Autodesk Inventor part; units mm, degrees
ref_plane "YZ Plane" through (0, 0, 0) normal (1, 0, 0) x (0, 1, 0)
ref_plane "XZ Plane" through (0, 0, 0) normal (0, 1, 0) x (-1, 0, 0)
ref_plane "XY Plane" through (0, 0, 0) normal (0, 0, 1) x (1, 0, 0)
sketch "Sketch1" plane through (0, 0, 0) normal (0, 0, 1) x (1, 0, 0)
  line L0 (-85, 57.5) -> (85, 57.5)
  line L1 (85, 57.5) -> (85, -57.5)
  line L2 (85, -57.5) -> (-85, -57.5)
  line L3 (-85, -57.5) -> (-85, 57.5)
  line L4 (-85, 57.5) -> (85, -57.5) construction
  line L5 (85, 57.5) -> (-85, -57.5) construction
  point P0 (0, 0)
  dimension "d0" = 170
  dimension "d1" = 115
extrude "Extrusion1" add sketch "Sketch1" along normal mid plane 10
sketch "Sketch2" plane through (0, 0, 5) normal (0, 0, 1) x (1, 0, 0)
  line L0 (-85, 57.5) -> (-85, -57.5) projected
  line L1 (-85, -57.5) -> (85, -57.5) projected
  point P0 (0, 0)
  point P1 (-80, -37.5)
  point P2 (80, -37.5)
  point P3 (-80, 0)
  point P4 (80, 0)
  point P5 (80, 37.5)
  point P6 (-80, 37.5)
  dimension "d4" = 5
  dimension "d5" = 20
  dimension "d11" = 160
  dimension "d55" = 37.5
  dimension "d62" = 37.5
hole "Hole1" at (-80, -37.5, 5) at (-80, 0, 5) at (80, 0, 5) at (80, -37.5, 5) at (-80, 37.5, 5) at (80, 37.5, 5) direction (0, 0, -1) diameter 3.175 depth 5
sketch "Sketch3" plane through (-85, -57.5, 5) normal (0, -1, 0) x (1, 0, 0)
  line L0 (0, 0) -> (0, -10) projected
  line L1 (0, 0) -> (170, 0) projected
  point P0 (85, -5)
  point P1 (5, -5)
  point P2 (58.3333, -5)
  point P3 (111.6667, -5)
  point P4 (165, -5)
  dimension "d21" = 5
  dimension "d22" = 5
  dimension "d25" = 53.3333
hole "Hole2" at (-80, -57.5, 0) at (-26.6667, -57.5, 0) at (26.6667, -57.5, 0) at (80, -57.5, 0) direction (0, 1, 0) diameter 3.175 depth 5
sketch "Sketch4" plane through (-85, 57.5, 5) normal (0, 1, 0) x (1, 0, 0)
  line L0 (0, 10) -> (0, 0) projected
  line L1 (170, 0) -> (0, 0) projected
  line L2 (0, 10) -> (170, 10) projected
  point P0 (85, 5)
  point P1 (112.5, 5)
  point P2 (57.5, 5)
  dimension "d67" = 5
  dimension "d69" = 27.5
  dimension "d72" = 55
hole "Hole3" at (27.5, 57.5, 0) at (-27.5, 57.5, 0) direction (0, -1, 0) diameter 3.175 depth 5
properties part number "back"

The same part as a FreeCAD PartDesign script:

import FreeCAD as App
import Part
import Sketcher
Q = App.Units.Quantity


def add_polygon(sketch, points):
    """Adds a closed chain of lines whose ends are joined by coincident constraints."""
    first, n = sketch.GeometryCount, len(points)
    for a, b in zip(points, points[1:] + points[:1]):
        sketch.addGeometry(Part.LineSegment(App.Vector(*a, 0), App.Vector(*b, 0)), False)
    for i in range(n):
        sketch.addConstraint(Sketcher.Constraint("Coincident", first + i, 2, first + (i + 1) % n, 1))

doc = App.newDocument("Part")
params = doc.addObject("Spreadsheet::Sheet", "Params")
for row, (alias, value) in enumerate([
    ("sketch1_width", "170 mm"),
    ("sketch1_height", "115 mm"),
    ("pad1_length", "10 mm"),
    ("hole_diameter", "3.175 mm"),
    ("hole_depth", "5 mm"),
    ("hole2_diameter", "3.175 mm"),
    ("hole2_depth", "5 mm"),
    ("hole3_diameter", "3.175 mm"),
    ("hole3_depth", "5 mm"),
], start=1):
    params.set(f"A{row}", alias)
    params.set(f"B{row}", "=" + value)
    params.setAlias(f"B{row}", alias)

body = doc.addObject("PartDesign::Body", "Body")

# Sketch on XY plane
sketch1 = body.newObject("Sketcher::SketchObject", "Sketch")
sketch1.AttachmentSupport = (doc.getObject("XY_Plane"), [""])
sketch1.MapMode = "FlatFace"
add_polygon(sketch1, [(85, 57.5), (-85, 57.5), (-85, -57.5), (85, -57.5)])  # lines 0-3
sketch1.addConstraint(Sketcher.Constraint("Horizontal", 0))
sketch1.addConstraint(Sketcher.Constraint("Vertical", 1))
sketch1.addConstraint(Sketcher.Constraint("Horizontal", 2))
sketch1.addConstraint(Sketcher.Constraint("Vertical", 3))
sketch1.addConstraint(Sketcher.Constraint("Symmetric", 0, 2, 2, 2, -1, 1))
sketch1.addConstraint(Sketcher.Constraint("DistanceX", 0, 2, 0, 1, Q("170 mm")))
sketch1.addConstraint(Sketcher.Constraint("DistanceY", 1, 2, 1, 1, Q("115 mm")))
sketch1.setExpression("Constraints[9]", "Params.sketch1_width")
sketch1.setExpression("Constraints[10]", "Params.sketch1_height")
pad1 = body.newObject("PartDesign::Pad", "Pad")
pad1.Profile = sketch1
pad1.setExpression("Length", "Params.pad1_length")
pad1.Midplane = True

# Sketch on XY plane
sketch2 = body.newObject("Sketcher::SketchObject", "Sketch001")
sketch2.AttachmentSupport = (doc.getObject("XY_Plane"), [""])
sketch2.MapMode = "FlatFace"
sketch2.AttachmentOffset = App.Placement(App.Vector(0, 0, 5), App.Rotation())
sketch2.addGeometry(Part.Circle(App.Vector(-80, -37.5, 0), App.Vector(0, 0, 1), 1.5875), False)
sketch2.addGeometry(Part.Circle(App.Vector(-80, 0, 0), App.Vector(0, 0, 1), 1.5875), False)
sketch2.addGeometry(Part.Circle(App.Vector(80, 0, 0), App.Vector(0, 0, 1), 1.5875), False)
sketch2.addGeometry(Part.Circle(App.Vector(80, -37.5, 0), App.Vector(0, 0, 1), 1.5875), False)
sketch2.addGeometry(Part.Circle(App.Vector(-80, 37.5, 0), App.Vector(0, 0, 1), 1.5875), False)
sketch2.addGeometry(Part.Circle(App.Vector(80, 37.5, 0), App.Vector(0, 0, 1), 1.5875), False)
sketch2.addConstraint(Sketcher.Constraint("Equal", 0, 1))
sketch2.addConstraint(Sketcher.Constraint("Equal", 1, 2))
sketch2.addConstraint(Sketcher.Constraint("Equal", 2, 3))
sketch2.addConstraint(Sketcher.Constraint("Equal", 3, 4))
sketch2.addConstraint(Sketcher.Constraint("Equal", 4, 5))
sketch2.addConstraint(Sketcher.Constraint("Symmetric", 1, 3, 2, 3, -1, 1))
sketch2.addConstraint(Sketcher.Constraint("Symmetric", 3, 3, 4, 3, -1, 1))
sketch2.addConstraint(Sketcher.Constraint("Symmetric", 0, 3, 5, 3, -1, 1))
sketch2.addConstraint(Sketcher.Constraint("Symmetric", 0, 3, 3, 3, -2))
sketch2.addConstraint(Sketcher.Constraint("PointOnObject", 1, 3, -1))
sketch2.addConstraint(Sketcher.Constraint("Vertical", 0, 3, 1, 3))
sketch2.addConstraint(Sketcher.Constraint("Diameter", 0, Q("3.175 mm")))
sketch2.addConstraint(Sketcher.Constraint("DistanceX", 0, 3, -1, 1, Q("80 mm")))
sketch2.addConstraint(Sketcher.Constraint("DistanceY", 0, 3, 4, 3, Q("75 mm")))
doc.recompute()
hole = body.newObject("PartDesign::Hole", "Hole")
hole.Profile = sketch2
hole.ThreadType = "None"
hole.setExpression("Diameter", "Params.hole_diameter")
hole.DepthType = "Dimension"
hole.setExpression("Depth", "Params.hole_depth")
hole.DrillPoint = "Flat"

# Sketch on XZ plane
sketch3 = body.newObject("Sketcher::SketchObject", "Sketch002")
sketch3.AttachmentSupport = (doc.getObject("XZ_Plane"), [""])
sketch3.MapMode = "FlatFace"
sketch3.AttachmentOffset = App.Placement(App.Vector(0, 0, 57.5), App.Rotation())
sketch3.addGeometry(Part.Circle(App.Vector(-80, 0, 0), App.Vector(0, 0, 1), 1.5875), False)
sketch3.addGeometry(Part.Circle(App.Vector(-26.6667, 0, 0), App.Vector(0, 0, 1), 1.5875), False)
sketch3.addGeometry(Part.Circle(App.Vector(26.6667, 0, 0), App.Vector(0, 0, 1), 1.5875), False)
sketch3.addGeometry(Part.Circle(App.Vector(80, 0, 0), App.Vector(0, 0, 1), 1.5875), False)
sketch3.addConstraint(Sketcher.Constraint("Equal", 0, 1))
sketch3.addConstraint(Sketcher.Constraint("Equal", 1, 2))
sketch3.addConstraint(Sketcher.Constraint("Equal", 2, 3))
sketch3.addConstraint(Sketcher.Constraint("Symmetric", 1, 3, 2, 3, -1, 1))
sketch3.addConstraint(Sketcher.Constraint("Symmetric", 0, 3, 3, 3, -1, 1))
sketch3.addConstraint(Sketcher.Constraint("PointOnObject", 0, 3, -1))
sketch3.addConstraint(Sketcher.Constraint("PointOnObject", 1, 3, -1))
sketch3.addConstraint(Sketcher.Constraint("Diameter", 0, Q("3.175 mm")))
sketch3.addConstraint(Sketcher.Constraint("DistanceX", 0, 3, -1, 1, Q("80 mm")))
sketch3.addConstraint(Sketcher.Constraint("DistanceX", 1, 3, -1, 1, Q("26.6667 mm")))
doc.recompute()
hole2 = body.newObject("PartDesign::Hole", "Hole001")
hole2.Profile = sketch3
hole2.ThreadType = "None"
hole2.setExpression("Diameter", "Params.hole2_diameter")
hole2.DepthType = "Dimension"
hole2.setExpression("Depth", "Params.hole2_depth")
hole2.DrillPoint = "Flat"

# Sketch on XZ plane
sketch4 = body.newObject("Sketcher::SketchObject", "Sketch003")
sketch4.AttachmentSupport = (doc.getObject("XZ_Plane"), [""])
sketch4.MapMode = "FlatFace"
sketch4.AttachmentOffset = App.Placement(App.Vector(0, 0, -57.5), App.Rotation())
sketch4.addGeometry(Part.Circle(App.Vector(27.5, 0, 0), App.Vector(0, 0, 1), 1.5875), False)
sketch4.addGeometry(Part.Circle(App.Vector(-27.5, 0, 0), App.Vector(0, 0, 1), 1.5875), False)
sketch4.addConstraint(Sketcher.Constraint("Equal", 0, 1))
sketch4.addConstraint(Sketcher.Constraint("Symmetric", 0, 3, 1, 3, -1, 1))
sketch4.addConstraint(Sketcher.Constraint("PointOnObject", 0, 3, -1))
sketch4.addConstraint(Sketcher.Constraint("Diameter", 0, Q("3.175 mm")))
sketch4.addConstraint(Sketcher.Constraint("DistanceX", 1, 3, 0, 3, Q("55 mm")))
doc.recompute()
hole3 = body.newObject("PartDesign::Hole", "Hole002")
hole3.Profile = sketch4
hole3.ThreadType = "None"
hole3.setExpression("Diameter", "Params.hole3_diameter")
hole3.DepthType = "Dimension"
hole3.setExpression("Depth", "Params.hole3_depth")
hole3.DrillPoint = "Flat"
hole3.Reversed = True

doc.recompute()
